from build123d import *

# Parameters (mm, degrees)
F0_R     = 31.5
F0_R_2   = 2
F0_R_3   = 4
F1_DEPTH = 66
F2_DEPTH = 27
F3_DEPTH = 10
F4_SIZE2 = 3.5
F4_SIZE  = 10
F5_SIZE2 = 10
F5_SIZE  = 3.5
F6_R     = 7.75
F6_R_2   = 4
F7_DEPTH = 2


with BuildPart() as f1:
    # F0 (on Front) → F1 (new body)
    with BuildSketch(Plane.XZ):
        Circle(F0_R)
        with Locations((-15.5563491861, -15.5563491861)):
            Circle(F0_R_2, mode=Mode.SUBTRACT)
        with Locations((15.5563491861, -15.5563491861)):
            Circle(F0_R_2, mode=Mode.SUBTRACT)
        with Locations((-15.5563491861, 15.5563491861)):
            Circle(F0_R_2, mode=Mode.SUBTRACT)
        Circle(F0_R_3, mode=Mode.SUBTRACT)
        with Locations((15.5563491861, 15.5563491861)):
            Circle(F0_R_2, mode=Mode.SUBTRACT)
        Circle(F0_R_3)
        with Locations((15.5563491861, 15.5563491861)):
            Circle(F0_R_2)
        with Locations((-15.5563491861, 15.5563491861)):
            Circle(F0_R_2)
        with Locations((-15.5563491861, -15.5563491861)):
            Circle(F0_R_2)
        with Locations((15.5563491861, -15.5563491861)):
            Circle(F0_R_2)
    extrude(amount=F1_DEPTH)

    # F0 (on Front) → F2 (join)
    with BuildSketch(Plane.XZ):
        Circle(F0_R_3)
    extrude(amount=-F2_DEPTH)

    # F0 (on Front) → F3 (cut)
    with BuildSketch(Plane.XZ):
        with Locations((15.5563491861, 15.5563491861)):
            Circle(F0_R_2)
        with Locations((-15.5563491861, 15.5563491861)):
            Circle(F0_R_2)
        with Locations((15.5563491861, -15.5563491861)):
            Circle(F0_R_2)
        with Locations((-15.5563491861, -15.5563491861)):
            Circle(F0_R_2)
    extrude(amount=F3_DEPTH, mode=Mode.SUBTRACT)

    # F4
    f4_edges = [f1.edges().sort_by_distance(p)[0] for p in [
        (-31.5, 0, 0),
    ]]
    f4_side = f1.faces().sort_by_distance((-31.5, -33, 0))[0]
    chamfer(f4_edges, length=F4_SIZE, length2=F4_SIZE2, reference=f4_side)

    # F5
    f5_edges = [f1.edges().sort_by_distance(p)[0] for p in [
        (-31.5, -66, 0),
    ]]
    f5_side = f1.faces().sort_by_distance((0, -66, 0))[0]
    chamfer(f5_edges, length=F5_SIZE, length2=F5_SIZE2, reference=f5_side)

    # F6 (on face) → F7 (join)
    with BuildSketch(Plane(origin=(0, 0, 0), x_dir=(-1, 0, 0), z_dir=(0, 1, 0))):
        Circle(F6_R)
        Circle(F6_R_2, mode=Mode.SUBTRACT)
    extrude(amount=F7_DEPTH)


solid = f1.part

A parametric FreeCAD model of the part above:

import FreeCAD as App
import Part
import Sketcher
from FreeCAD import Vector
Q = App.Units.Quantity


def edges_at(feature, points):
    """Names of the edges that pass closest to the given points."""
    edges = feature.Shape.Edges
    near = lambda p: min(range(len(edges)), key=lambda i: edges[i].distToShape(Part.Vertex(*p))[0])
    return sorted({f"Edge{near(p) + 1}" for p in points})

doc = App.newDocument("Part")
body = doc.addObject("PartDesign::Body", "Body")

# Sketch on XZ plane
sketch1 = doc.addObject("Sketcher::SketchObject", "Sketch")
body.addObject(sketch1)
sketch1.AttachmentSupport = (doc.XZ_Plane, [""])
sketch1.MapMode = "FlatFace"
sketch1.addGeometry(Part.Circle(Vector(0, 0, 0), Vector(0, 0, 1), 32), False)
sketch1.addConstraint(Sketcher.Constraint("Coincident", 0, 3, -1, 1))
sketch1.addConstraint(Sketcher.Constraint("Diameter", 0, Q("63 mm")))
pad1 = doc.addObject("PartDesign::Pad", "Pad")
body.addObject(pad1)
pad1.Profile = sketch1
pad1.Length = 66

# Sketch on XZ plane
sketch2 = doc.addObject("Sketcher::SketchObject", "Sketch001")
body.addObject(sketch2)
sketch2.AttachmentSupport = (doc.XZ_Plane, [""])
sketch2.MapMode = "FlatFace"
sketch2.addGeometry(Part.Circle(Vector(0, 0, 0), Vector(0, 0, 1), 4), False)
sketch2.addConstraint(Sketcher.Constraint("Coincident", 0, 3, -1, 1))
sketch2.addConstraint(Sketcher.Constraint("Diameter", 0, Q("8 mm")))
pad2 = doc.addObject("PartDesign::Pad", "Pad001")
body.addObject(pad2)
pad2.Profile = sketch2
pad2.Length = 27
pad2.Reversed = True

# Sketch on XZ plane
sketch3 = doc.addObject("Sketcher::SketchObject", "Sketch002")
body.addObject(sketch3)
sketch3.AttachmentSupport = (doc.XZ_Plane, [""])
sketch3.MapMode = "FlatFace"
sketch3.addGeometry(Part.Circle(Vector(15.6, 15.6, 0), Vector(0, 0, 1), 2), False)
sketch3.addGeometry(Part.Circle(Vector(-15.6, 15.6, 0), Vector(0, 0, 1), 2), False)
sketch3.addGeometry(Part.Circle(Vector(15.6, -15.6, 0), Vector(0, 0, 1), 2), False)
sketch3.addGeometry(Part.Circle(Vector(-15.6, -15.6, 0), Vector(0, 0, 1), 2), False)
sketch3.addConstraint(Sketcher.Constraint("Equal", 0, 1))
sketch3.addConstraint(Sketcher.Constraint("Equal", 1, 2))
sketch3.addConstraint(Sketcher.Constraint("Equal", 2, 3))
sketch3.addConstraint(Sketcher.Constraint("Symmetric", 1, 3, 2, 3, -1, 1))
sketch3.addConstraint(Sketcher.Constraint("Symmetric", 0, 3, 3, 3, -1, 1))
sketch3.addConstraint(Sketcher.Constraint("Symmetric", 0, 3, 1, 3, -2))
sketch3.addConstraint(Sketcher.Constraint("Diameter", 0, Q("4 mm")))
sketch3.addConstraint(Sketcher.Constraint("DistanceX", 1, 3, 0, 3, Q("31.112698 mm")))
sketch3.addConstraint(Sketcher.Constraint("DistanceY", 2, 3, 0, 3, Q("31.112698 mm")))
pocket1 = doc.addObject("PartDesign::Pocket", "Pocket")
body.addObject(pocket1)
pocket1.Profile = sketch3
pocket1.Length = 10
pocket1.Reversed = True
doc.recompute()

chamfer = doc.addObject("PartDesign::Chamfer", "Chamfer")
body.addObject(chamfer)
chamfer.Base = (pocket1, edges_at(pocket1, [(-31.5, 0, 0)]))
chamfer.ChamferType = "Two distances"
chamfer.Size = 10
chamfer.Size2 = 3.5
doc.recompute()

chamfer2 = doc.addObject("PartDesign::Chamfer", "Chamfer001")
body.addObject(chamfer2)
chamfer2.Base = (chamfer, edges_at(chamfer, [(-31.5, -66, 0)]))
chamfer2.ChamferType = "Two distances"
chamfer2.Size = 3.5
chamfer2.Size2 = 10
chamfer2.FlipDirection = True

# Sketch on XZ plane
sketch4 = doc.addObject("Sketcher::SketchObject", "Sketch003")
body.addObject(sketch4)
sketch4.AttachmentSupport = (doc.XZ_Plane, [""])
sketch4.MapMode = "FlatFace"
sketch4.addGeometry(Part.Circle(Vector(0, 0, 0), Vector(0, 0, 1), 7.8), False)
sketch4.addGeometry(Part.Circle(Vector(0, 0, 0), Vector(0, 0, 1), 4), False)
sketch4.addConstraint(Sketcher.Constraint("Coincident", 0, 3, -1, 1))
sketch4.addConstraint(Sketcher.Constraint("Coincident", 1, 3, -1, 1))
sketch4.addConstraint(Sketcher.Constraint("Diameter", 1, Q("8 mm")))
sketch4.addConstraint(Sketcher.Constraint("Diameter", 0, Q("15.5 mm")))
pad3 = doc.addObject("PartDesign::Pad", "Pad002")
body.addObject(pad3)
pad3.Profile = sketch4
pad3.Length = 2
pad3.Reversed = True

doc.recompute()
